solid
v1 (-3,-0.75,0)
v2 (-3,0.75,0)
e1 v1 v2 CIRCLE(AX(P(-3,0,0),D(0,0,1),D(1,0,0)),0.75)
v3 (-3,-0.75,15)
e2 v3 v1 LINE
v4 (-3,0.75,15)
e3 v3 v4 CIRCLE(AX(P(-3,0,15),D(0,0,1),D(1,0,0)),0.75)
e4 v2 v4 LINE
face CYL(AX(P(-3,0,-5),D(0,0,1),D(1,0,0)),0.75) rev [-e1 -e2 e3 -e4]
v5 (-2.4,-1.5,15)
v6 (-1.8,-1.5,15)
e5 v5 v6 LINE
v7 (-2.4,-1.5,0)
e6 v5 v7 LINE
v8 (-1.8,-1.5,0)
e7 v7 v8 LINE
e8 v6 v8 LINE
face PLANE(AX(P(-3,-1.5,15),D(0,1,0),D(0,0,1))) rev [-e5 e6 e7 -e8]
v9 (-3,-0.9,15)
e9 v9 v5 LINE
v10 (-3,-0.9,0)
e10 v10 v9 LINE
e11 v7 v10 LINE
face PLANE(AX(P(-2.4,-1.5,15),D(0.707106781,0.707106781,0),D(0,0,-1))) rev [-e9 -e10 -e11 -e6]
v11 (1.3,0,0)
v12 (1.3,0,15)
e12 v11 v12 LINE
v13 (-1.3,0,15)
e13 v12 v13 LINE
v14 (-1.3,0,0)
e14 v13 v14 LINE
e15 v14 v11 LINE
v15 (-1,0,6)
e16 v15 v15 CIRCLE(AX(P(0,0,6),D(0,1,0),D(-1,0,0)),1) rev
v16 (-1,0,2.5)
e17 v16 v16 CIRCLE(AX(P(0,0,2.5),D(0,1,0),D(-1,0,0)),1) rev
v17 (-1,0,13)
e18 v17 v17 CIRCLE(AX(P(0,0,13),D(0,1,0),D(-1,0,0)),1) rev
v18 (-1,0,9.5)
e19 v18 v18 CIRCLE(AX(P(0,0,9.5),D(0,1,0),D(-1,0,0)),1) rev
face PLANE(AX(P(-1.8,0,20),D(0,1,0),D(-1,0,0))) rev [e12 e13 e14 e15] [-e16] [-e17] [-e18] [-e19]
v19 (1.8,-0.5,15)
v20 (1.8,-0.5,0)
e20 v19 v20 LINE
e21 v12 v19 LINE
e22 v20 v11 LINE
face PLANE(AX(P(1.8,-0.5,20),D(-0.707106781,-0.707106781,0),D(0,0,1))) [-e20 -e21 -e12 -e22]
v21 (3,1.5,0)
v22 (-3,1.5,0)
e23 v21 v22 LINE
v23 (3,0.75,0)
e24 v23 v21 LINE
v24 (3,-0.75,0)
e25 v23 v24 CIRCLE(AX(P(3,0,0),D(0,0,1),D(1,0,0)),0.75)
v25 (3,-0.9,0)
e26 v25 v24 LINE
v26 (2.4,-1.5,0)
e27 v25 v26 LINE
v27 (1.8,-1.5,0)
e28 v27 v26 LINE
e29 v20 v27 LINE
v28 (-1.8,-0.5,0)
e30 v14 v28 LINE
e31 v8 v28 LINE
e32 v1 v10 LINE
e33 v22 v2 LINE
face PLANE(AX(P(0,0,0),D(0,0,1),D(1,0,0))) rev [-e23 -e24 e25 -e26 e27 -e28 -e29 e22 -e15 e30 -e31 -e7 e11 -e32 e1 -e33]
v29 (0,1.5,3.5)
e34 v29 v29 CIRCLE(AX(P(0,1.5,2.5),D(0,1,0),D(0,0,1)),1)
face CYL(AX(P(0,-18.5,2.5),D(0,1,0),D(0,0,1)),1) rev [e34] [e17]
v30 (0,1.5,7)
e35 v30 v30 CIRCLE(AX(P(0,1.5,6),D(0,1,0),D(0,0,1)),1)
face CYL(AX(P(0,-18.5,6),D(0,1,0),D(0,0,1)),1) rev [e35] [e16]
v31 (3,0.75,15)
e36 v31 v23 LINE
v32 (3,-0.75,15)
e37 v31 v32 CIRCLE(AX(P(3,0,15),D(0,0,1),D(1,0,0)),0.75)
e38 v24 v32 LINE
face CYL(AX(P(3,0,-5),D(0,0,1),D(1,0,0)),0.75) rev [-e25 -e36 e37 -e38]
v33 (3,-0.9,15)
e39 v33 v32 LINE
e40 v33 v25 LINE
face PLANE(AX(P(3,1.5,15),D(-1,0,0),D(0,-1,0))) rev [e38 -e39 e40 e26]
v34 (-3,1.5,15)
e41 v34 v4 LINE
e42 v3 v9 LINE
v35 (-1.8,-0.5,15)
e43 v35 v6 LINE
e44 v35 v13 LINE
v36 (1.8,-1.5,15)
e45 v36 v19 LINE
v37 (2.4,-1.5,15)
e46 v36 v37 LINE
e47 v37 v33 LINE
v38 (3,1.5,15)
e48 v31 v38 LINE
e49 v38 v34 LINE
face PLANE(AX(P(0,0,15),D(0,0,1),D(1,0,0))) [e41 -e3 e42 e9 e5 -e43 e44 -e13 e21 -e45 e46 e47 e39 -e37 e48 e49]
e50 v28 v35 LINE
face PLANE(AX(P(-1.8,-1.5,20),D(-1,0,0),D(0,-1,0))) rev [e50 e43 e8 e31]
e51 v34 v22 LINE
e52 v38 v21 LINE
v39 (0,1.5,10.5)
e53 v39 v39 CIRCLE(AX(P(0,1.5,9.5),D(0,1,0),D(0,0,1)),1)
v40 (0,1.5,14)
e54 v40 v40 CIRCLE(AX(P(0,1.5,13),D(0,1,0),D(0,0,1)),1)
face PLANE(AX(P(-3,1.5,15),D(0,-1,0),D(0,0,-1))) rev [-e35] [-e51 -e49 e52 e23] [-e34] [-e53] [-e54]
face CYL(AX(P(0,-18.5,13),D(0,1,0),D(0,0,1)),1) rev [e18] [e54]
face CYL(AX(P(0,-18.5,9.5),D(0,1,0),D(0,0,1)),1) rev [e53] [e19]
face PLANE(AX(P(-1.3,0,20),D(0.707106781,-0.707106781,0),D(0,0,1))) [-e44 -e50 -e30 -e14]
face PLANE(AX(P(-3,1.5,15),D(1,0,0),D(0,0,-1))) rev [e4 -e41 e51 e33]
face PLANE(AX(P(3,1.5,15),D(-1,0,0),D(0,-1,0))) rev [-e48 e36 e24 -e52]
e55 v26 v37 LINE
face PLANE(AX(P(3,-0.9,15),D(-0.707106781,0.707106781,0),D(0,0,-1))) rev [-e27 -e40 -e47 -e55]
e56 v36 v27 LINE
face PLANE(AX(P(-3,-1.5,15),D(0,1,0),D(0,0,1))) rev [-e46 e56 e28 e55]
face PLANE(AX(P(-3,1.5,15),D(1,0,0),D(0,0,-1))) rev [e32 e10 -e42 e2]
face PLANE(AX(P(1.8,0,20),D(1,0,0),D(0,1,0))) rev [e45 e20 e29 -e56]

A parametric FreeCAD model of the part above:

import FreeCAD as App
import Part
import Sketcher

V = App.Vector


def edges_at(feature, points):
    """Names of the edges that pass closest to the given points."""
    edges = feature.Shape.Edges
    near = lambda p: min(range(len(edges)), key=lambda i: edges[i].distToShape(Part.Vertex(*p))[0])
    return sorted({f"Edge{near(p) + 1}" for p in points})


def add_polygon(sketch, points):
    """Adds a closed chain of lines whose ends are joined by coincident constraints."""
    first, n = sketch.GeometryCount, len(points)
    for a, b in zip(points, points[1:] + points[:1]):
        sketch.addGeometry(Part.LineSegment(App.Vector(*a, 0), App.Vector(*b, 0)), False)
    for i in range(n):
        sketch.addConstraint(Sketcher.Constraint("Coincident", first + i, 2, first + (i + 1) % n, 1))

doc = App.newDocument("Part")
body = doc.addObject("PartDesign::Body", "Body")

# Sketch on XY plane
sketch1 = body.newObject("Sketcher::SketchObject", "Sketch")
sketch1.AttachmentSupport = (doc.getObject("XY_Plane"), [""])
sketch1.MapMode = "FlatFace"
add_polygon(sketch1, [(-3, 1.5), (-3, -1.5), (3, -1.5), (3, 1.5)])  # lines 0-3
sketch1.addConstraint(Sketcher.Constraint("Vertical", 0))
sketch1.addConstraint(Sketcher.Constraint("Horizontal", 1))
sketch1.addConstraint(Sketcher.Constraint("Vertical", 2))
sketch1.addConstraint(Sketcher.Constraint("Horizontal", 3))
sketch1.addConstraint(Sketcher.Constraint("Symmetric", 0, 2, 2, 2, -1, 1))
sketch1.addConstraint(Sketcher.Constraint("DistanceX", 1, 1, 1, 2, 6.0))
sketch1.addConstraint(Sketcher.Constraint("DistanceY", 0, 2, 0, 1, 3.0))
pad1 = body.newObject("PartDesign::Pad", "Pad")
pad1.Profile = sketch1
pad1.Length = 15

# Sketch on XY plane
sketch2 = body.newObject("Sketcher::SketchObject", "Sketch001")
sketch2.AttachmentSupport = (doc.getObject("XY_Plane"), [""])
sketch2.MapMode = "FlatFace"
sketch2.AttachmentOffset = App.Placement(V(0, 0, 15), App.Rotation())
sketch2.addGeometry(Part.Circle(V(3, 0, 0), V(0, 0, 1), 0.75), False)
sketch2.addGeometry(Part.Circle(V(-3, 0, 0), V(0, 0, 1), 0.75), False)
sketch2.addConstraint(Sketcher.Constraint("Equal", 0, 1))
sketch2.addConstraint(Sketcher.Constraint("Symmetric", 0, 3, 1, 3, -1, 1))
sketch2.addConstraint(Sketcher.Constraint("PointOnObject", 0, 3, -1))
sketch2.addConstraint(Sketcher.Constraint("Diameter", 0, 1.5))
sketch2.addConstraint(Sketcher.Constraint("DistanceX", -1, 1, 0, 3, 3.0))
pocket1 = body.newObject("PartDesign::Pocket", "Pocket")
pocket1.Profile = sketch2
pocket1.Length = 20
doc.recompute()

chamfer = body.newObject("PartDesign::Chamfer", "Chamfer")
chamfer.Base = (pocket1, edges_at(pocket1, [(3, -1.5, 7.5), (-3, -1.5, 7.5)]))
chamfer.Size = 0.6

# Sketch on XZ plane
sketch3 = body.newObject("Sketcher::SketchObject", "Sketch002")
sketch3.AttachmentSupport = (doc.getObject("XZ_Plane"), [""])
sketch3.MapMode = "FlatFace"
sketch3.AttachmentOffset = App.Placement(V(0, 0, -1.5), App.Rotation())
sketch3.addGeometry(Part.Circle(V(0, 2.5, 0), V(0, 0, 1), 1), False)
sketch3.addConstraint(Sketcher.Constraint("PointOnObject", 0, 3, -2))
sketch3.addConstraint(Sketcher.Constraint("Diameter", 0, 2.0))
sketch3.addConstraint(Sketcher.Constraint("DistanceY", -1, 1, 0, 3, 2.5))
pocket2 = body.newObject("PartDesign::Pocket", "Pocket001")
pocket2.Profile = sketch3
pocket2.Length = 20
pocket2.Reversed = True
doc.recompute()

linearpattern = body.newObject("PartDesign::LinearPattern", "LinearPattern")
linearpattern.Originals = [pocket2]
linearpattern.Direction = (doc.getObject("Z_Axis"), [""])
linearpattern.Mode = "offset"
linearpattern.Offset = 3.5
linearpattern.Occurrences = 4
body.Tip = linearpattern

# Sketch on XY plane
sketch4 = body.newObject("Sketcher::SketchObject", "Sketch003")
sketch4.AttachmentSupport = (doc.getObject("XY_Plane"), [""])
sketch4.MapMode = "FlatFace"
add_polygon(sketch4, [(1.8, 0), (1.8, -1.5), (-1.8, -1.5), (-1.8, 0)])  # lines 0-3
sketch4.addConstraint(Sketcher.Constraint("Vertical", 0))
sketch4.addConstraint(Sketcher.Constraint("Horizontal", 1))
sketch4.addConstraint(Sketcher.Constraint("Vertical", 2))
sketch4.addConstraint(Sketcher.Constraint("Horizontal", 3))
sketch4.addConstraint(Sketcher.Constraint("Symmetric", 2, 2, 3, 2, -1, 1))
sketch4.addConstraint(Sketcher.Constraint("DistanceX", 1, 2, 1, 1, 3.6))
sketch4.addConstraint(Sketcher.Constraint("DistanceY", 0, 2, 0, 1, 1.5))
pocket3 = body.newObject("PartDesign::Pocket", "Pocket002")
pocket3.Profile = sketch4
pocket3.Length = 20
pocket3.Reversed = True
doc.recompute()

chamfer2 = body.newObject("PartDesign::Chamfer", "Chamfer001")
chamfer2.Base = (pocket3, edges_at(pocket3, [(1.8, 0, 7.5), (-1.8, 0, 7.5)]))
chamfer2.Size = 0.5

doc.recompute()
